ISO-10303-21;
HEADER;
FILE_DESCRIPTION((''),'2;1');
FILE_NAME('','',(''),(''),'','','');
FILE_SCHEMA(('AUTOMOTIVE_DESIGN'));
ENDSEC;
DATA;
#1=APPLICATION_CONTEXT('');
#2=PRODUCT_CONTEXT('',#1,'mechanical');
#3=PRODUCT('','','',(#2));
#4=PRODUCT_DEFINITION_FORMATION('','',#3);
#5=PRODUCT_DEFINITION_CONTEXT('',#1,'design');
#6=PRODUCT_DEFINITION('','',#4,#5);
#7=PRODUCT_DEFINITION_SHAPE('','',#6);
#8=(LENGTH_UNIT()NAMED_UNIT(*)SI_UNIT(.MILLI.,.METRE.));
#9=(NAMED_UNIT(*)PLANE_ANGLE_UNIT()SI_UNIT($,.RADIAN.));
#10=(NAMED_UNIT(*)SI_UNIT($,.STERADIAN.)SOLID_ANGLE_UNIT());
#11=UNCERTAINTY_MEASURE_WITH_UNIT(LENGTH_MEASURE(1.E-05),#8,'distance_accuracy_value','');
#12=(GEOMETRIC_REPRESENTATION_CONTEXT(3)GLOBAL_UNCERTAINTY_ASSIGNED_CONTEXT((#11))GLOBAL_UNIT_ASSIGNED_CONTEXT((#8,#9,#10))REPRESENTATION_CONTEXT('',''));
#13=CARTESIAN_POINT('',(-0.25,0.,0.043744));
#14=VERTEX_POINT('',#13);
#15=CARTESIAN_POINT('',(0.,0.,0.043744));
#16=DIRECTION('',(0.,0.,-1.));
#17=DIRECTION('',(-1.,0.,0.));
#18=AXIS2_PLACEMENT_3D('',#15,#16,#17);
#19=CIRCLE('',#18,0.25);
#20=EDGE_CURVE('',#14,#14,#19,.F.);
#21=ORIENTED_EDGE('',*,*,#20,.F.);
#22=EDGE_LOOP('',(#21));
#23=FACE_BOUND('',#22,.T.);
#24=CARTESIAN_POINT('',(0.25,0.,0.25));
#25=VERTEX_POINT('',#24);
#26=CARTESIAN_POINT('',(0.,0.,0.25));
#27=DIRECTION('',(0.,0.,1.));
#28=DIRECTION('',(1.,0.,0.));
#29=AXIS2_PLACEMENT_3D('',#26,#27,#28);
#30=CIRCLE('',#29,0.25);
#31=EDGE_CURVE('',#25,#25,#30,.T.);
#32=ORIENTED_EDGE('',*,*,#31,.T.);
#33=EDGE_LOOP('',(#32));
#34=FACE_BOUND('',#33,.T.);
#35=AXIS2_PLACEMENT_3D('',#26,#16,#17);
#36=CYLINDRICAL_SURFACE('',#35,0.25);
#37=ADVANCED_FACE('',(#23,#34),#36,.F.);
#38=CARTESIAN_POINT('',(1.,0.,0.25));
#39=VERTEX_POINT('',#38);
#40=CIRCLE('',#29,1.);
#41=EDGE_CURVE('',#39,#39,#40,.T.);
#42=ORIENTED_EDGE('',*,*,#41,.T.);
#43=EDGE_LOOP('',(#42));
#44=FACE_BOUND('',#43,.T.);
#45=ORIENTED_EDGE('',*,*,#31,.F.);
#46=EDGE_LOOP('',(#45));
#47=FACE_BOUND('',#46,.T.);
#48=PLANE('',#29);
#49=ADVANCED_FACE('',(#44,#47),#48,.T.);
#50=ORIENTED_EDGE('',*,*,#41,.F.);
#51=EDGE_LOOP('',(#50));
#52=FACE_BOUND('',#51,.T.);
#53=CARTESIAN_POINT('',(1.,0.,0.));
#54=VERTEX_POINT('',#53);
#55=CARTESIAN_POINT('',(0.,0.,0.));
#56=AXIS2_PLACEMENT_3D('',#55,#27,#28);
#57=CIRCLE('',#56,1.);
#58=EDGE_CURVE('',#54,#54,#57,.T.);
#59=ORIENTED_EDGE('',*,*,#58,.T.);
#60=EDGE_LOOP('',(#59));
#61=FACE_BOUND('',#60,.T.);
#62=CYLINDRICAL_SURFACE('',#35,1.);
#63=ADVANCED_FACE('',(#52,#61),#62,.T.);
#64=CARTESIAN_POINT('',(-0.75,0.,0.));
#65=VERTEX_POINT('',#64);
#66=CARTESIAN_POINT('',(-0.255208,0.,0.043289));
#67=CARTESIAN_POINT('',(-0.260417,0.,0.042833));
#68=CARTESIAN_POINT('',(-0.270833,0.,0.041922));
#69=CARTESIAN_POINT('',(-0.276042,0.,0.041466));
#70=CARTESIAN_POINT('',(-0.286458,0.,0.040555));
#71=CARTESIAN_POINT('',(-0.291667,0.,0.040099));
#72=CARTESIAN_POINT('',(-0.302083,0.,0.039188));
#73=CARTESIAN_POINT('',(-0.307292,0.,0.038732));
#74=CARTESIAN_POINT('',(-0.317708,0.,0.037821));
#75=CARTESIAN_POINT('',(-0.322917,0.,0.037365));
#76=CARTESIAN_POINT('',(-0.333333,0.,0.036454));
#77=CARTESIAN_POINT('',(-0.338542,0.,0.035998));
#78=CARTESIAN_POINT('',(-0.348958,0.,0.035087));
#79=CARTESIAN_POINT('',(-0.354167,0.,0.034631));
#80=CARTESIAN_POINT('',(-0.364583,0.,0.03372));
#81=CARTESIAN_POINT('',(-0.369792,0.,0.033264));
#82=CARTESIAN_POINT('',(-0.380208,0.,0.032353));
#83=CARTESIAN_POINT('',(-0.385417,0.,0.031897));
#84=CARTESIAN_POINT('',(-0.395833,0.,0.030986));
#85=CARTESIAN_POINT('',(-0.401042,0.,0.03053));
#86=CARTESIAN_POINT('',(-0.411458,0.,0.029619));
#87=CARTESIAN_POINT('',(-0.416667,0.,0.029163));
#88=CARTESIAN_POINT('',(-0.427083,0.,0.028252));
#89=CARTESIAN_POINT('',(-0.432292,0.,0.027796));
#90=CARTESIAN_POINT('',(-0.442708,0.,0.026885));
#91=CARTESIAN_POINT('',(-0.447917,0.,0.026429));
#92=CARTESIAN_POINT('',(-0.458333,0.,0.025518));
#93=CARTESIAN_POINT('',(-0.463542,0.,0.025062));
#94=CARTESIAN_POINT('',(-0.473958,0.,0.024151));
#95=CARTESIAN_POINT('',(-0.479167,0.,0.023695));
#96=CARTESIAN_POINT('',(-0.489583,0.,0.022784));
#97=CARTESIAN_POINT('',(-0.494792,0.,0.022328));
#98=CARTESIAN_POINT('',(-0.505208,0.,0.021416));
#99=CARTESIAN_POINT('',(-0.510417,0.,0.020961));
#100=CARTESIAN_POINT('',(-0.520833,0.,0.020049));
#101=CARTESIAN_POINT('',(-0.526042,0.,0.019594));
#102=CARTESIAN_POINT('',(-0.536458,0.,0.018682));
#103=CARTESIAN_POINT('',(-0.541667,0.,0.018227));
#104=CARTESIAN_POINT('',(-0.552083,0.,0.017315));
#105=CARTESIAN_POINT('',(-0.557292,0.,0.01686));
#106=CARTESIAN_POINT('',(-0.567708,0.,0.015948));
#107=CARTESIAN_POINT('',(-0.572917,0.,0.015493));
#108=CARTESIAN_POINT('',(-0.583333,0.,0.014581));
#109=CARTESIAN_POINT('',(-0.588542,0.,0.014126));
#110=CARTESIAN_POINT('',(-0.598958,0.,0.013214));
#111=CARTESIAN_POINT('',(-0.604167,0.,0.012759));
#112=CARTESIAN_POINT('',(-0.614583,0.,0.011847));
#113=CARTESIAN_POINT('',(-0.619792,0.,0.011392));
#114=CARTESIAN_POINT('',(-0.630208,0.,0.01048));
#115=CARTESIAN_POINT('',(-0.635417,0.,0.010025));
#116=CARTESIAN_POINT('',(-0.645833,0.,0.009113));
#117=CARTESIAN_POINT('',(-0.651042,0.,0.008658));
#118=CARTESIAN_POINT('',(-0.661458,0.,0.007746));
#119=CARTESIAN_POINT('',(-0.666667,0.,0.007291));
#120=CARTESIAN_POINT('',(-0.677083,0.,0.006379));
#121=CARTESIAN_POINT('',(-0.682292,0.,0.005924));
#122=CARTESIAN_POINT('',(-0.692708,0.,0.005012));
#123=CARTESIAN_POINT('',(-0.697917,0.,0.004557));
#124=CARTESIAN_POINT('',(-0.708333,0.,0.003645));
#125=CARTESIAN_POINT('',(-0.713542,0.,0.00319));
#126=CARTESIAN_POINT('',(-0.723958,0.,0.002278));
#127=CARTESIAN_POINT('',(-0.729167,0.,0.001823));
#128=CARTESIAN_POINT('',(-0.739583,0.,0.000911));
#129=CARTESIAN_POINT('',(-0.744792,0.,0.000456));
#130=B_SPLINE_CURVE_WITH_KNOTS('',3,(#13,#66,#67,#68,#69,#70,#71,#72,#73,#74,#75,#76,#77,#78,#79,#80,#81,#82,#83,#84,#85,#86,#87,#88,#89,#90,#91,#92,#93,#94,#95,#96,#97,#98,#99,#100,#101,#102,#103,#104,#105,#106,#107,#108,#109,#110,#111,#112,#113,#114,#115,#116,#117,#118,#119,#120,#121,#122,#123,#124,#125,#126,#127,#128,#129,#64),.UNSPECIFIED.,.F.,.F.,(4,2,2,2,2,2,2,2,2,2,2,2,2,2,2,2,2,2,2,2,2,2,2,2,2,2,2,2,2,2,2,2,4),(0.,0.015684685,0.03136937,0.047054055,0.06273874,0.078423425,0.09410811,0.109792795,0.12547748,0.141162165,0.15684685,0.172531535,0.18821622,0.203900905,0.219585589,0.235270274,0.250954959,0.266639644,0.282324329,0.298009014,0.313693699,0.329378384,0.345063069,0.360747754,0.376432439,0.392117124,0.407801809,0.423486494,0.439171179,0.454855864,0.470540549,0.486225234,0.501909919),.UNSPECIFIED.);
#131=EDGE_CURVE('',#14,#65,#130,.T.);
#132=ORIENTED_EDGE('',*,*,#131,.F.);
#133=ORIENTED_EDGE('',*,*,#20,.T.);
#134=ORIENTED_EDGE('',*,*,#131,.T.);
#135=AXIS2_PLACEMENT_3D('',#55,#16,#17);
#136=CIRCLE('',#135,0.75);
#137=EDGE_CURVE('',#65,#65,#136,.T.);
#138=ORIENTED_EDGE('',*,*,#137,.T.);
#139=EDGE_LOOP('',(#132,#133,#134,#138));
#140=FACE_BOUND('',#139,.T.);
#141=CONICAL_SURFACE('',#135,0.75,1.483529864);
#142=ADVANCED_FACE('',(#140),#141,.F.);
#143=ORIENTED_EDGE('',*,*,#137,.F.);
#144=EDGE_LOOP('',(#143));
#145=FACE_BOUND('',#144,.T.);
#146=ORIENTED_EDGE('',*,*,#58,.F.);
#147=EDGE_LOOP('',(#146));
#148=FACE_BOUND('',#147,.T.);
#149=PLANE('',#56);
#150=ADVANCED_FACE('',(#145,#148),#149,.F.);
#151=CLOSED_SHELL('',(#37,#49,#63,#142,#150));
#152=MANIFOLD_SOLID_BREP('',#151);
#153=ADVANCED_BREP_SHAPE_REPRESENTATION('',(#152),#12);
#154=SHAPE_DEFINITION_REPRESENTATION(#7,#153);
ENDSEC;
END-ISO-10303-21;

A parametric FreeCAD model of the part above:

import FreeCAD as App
import Part
import Sketcher
from FreeCAD import Vector
Q = App.Units.Quantity

doc = App.newDocument("Part")
body = doc.addObject("PartDesign::Body", "Body")

sketch1 = doc.addObject("Sketcher::SketchObject", "Sketch")
body.addObject(sketch1)
sketch1.AttachmentSupport = (doc.XY_Plane, [""])
sketch1.MapMode = "FlatFace"
sketch1.addGeometry([
    Part.Circle(Vector(0, 0, 0), Vector(0, 0, 1), 1),
    Part.Circle(Vector(0, 0, 0), Vector(0, 0, 1), 0.25),
], False)
sketch1.addConstraint([
    Sketcher.Constraint("Coincident", 0, 3, -1, 1),
    Sketcher.Constraint("Coincident", 1, 3, -1, 1),
    Sketcher.Constraint("Diameter", 0, Q("2 mm")),
    Sketcher.Constraint("Diameter", 1, Q("0.5 mm")),
])
pad1 = doc.addObject("PartDesign::Pad", "Pad")
body.addObject(pad1)
pad1.Profile = sketch1
pad1.Length = 0.25

sketch2 = doc.addObject("Sketcher::SketchObject", "Sketch001")
body.addObject(sketch2)
sketch2.AttachmentSupport = (doc.YZ_Plane, [""])
sketch2.MapMode = "FlatFace"
sketch2.addGeometry([
    Part.LineSegment(Vector(0, 0, 0), Vector(0.75, 0, 0)),
    Part.LineSegment(Vector(0.75, 0, 0), Vector(0, 0.065616, 0)),
    Part.LineSegment(Vector(0, 0.065616, 0), Vector(0, 0, 0)),
], False)
sketch2.addConstraint([
    Sketcher.Constraint("Coincident", 0, 2, 1, 1),
    Sketcher.Constraint("Coincident", 1, 2, 2, 1),
    Sketcher.Constraint("Coincident", 2, 2, 0, 1),
    Sketcher.Constraint("Horizontal", 0),
    Sketcher.Constraint("Vertical", 2),
    Sketcher.Constraint("Coincident", 2, 2, -1, 1),
    Sketcher.Constraint("Angle", 1, Q("175 deg")),
    Sketcher.Constraint("DistanceX", 0, 1, 0, 2, Q("0.75 mm")),
])
groove = doc.addObject("PartDesign::Groove", "Groove")
body.addObject(groove)
groove.Profile = sketch2
groove.ReferenceAxis = (sketch2, ["V_Axis"])
groove.Angle = 360

doc.recompute()
